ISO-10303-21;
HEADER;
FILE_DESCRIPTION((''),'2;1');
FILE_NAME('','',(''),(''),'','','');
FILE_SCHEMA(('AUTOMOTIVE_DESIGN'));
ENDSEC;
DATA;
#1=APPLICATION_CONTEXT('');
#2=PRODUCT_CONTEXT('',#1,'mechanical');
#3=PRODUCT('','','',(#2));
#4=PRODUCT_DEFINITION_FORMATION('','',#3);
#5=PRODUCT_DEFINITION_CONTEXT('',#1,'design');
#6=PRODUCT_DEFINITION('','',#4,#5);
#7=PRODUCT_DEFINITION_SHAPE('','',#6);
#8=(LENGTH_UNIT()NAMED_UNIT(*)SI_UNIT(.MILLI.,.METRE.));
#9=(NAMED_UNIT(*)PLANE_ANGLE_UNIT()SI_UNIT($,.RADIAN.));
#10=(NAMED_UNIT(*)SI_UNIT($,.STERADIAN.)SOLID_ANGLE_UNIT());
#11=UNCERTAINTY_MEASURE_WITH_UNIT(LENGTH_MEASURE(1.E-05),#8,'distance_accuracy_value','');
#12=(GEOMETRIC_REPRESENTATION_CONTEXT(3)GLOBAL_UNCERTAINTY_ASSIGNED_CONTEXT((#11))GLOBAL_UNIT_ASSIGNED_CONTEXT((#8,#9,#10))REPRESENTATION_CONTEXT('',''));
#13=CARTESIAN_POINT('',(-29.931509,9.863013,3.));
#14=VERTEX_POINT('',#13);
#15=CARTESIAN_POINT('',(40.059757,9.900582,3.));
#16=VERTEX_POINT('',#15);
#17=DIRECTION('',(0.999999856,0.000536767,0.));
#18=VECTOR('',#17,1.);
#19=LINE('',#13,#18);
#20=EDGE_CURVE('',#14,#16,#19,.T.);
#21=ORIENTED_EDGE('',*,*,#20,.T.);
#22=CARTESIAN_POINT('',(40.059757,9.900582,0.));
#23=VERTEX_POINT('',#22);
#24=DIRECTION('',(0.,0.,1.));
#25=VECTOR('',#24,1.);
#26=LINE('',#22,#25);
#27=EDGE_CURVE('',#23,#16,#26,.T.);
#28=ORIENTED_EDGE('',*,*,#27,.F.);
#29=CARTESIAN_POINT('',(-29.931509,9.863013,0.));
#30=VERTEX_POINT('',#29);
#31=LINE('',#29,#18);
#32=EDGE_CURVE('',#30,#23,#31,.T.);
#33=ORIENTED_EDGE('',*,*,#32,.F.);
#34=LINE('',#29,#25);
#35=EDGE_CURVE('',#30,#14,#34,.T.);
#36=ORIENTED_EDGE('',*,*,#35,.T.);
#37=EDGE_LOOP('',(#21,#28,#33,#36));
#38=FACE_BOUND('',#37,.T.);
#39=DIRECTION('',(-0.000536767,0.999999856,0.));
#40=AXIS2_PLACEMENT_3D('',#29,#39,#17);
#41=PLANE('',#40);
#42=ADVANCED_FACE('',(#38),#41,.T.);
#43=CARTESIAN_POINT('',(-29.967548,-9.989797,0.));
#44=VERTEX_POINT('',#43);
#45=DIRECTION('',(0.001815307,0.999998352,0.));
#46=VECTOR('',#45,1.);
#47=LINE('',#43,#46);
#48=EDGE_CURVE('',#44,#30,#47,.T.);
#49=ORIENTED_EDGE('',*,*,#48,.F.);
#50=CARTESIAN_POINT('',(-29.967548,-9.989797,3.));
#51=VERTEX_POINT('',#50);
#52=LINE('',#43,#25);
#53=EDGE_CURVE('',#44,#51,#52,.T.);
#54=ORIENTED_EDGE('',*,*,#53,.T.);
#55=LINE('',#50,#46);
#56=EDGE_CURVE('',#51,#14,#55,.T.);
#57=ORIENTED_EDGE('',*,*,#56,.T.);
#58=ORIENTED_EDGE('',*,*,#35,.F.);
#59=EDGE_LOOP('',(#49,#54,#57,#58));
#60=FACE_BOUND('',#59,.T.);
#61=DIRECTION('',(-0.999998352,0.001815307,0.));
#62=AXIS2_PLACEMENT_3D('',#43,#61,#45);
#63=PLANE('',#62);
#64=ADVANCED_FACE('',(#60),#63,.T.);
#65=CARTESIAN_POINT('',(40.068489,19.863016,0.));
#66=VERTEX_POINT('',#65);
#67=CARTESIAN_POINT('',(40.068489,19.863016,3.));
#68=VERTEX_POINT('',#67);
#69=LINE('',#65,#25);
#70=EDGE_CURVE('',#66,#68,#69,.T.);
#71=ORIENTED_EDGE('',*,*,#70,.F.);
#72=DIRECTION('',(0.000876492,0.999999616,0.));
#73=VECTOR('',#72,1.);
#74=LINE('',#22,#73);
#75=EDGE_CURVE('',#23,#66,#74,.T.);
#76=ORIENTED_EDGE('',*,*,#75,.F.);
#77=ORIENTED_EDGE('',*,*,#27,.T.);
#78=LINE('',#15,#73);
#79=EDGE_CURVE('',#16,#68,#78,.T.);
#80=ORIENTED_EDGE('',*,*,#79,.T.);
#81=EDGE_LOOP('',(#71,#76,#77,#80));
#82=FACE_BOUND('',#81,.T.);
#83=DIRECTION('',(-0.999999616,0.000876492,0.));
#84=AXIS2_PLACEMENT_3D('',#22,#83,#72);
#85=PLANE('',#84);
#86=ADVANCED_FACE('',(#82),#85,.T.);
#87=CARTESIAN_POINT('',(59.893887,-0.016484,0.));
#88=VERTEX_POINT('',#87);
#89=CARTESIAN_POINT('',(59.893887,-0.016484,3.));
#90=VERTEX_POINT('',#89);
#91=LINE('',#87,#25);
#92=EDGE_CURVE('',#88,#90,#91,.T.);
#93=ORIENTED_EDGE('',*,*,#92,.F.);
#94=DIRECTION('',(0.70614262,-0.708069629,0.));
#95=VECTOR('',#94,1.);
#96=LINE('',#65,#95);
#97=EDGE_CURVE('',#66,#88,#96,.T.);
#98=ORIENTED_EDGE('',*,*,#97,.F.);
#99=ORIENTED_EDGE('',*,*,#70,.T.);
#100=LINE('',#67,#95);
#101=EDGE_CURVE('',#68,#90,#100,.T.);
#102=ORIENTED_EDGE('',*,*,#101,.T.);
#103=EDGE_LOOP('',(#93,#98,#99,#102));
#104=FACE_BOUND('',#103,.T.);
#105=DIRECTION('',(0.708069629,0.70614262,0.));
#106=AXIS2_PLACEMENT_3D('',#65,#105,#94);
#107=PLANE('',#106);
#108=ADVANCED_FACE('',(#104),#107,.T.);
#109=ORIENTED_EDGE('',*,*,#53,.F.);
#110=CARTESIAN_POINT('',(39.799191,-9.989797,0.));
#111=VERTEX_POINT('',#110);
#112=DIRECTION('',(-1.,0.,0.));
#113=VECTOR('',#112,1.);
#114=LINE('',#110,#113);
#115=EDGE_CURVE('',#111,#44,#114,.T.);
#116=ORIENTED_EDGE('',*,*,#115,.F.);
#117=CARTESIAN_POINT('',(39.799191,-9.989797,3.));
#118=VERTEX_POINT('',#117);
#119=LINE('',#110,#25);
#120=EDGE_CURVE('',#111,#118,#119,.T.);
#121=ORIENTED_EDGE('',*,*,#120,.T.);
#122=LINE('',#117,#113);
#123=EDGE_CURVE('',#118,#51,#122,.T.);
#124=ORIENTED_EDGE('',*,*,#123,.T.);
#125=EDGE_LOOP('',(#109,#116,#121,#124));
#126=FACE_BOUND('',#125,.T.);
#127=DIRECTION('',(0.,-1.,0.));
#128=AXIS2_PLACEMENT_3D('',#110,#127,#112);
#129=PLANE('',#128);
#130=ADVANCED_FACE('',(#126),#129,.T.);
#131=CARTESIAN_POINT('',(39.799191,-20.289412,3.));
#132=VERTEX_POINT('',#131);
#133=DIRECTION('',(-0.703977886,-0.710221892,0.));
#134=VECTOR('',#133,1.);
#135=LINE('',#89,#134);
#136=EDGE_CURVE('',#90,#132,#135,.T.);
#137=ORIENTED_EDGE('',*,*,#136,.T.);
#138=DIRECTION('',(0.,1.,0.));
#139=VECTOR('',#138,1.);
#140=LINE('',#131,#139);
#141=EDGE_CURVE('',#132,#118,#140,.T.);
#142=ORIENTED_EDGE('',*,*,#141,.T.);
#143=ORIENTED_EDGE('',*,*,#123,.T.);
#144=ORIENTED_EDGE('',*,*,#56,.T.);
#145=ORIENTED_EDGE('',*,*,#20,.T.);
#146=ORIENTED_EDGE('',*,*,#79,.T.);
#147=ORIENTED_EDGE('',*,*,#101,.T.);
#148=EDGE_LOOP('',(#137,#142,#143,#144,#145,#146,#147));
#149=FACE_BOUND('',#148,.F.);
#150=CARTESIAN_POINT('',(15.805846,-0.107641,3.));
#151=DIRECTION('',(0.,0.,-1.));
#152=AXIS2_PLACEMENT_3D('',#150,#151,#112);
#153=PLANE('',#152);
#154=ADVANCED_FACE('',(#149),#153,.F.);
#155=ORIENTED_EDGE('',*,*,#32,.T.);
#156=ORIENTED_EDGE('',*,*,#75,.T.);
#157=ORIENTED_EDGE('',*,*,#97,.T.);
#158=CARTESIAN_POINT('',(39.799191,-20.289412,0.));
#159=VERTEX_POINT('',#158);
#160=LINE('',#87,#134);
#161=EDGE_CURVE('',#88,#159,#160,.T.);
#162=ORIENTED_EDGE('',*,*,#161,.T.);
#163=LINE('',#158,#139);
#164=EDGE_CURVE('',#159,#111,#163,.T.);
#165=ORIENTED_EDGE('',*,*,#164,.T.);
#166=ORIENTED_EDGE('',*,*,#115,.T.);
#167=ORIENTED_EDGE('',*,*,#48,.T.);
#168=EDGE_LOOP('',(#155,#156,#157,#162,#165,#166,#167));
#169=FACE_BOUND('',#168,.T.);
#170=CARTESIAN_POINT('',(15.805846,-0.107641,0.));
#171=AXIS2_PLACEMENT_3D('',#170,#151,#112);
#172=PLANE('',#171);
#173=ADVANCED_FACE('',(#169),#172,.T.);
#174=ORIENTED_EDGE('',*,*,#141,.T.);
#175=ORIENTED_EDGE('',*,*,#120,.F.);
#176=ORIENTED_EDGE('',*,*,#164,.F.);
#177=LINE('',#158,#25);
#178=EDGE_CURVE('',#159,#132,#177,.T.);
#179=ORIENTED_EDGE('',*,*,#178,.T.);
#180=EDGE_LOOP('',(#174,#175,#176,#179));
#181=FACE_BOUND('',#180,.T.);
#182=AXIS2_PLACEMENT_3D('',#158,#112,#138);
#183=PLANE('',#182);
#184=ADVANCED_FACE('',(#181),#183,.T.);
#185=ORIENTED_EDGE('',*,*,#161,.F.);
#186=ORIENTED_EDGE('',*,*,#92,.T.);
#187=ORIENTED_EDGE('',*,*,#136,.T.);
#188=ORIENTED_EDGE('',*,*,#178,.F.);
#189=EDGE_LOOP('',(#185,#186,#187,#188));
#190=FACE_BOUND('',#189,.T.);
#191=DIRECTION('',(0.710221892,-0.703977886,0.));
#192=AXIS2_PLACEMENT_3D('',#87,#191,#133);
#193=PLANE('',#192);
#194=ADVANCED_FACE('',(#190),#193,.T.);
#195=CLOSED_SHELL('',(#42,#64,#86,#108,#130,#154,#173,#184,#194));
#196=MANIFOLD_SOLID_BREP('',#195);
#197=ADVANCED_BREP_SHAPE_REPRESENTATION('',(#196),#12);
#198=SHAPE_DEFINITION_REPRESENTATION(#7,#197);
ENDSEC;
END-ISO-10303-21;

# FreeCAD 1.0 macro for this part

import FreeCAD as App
import Part
import Sketcher
from FreeCAD import Vector


def add_polygon(sketch, points):
    """Adds a closed chain of lines whose ends are joined by coincident constraints."""
    first, n = sketch.GeometryCount, len(points)
    for a, b in zip(points, points[1:] + points[:1]):
        sketch.addGeometry(Part.LineSegment(App.Vector(*a, 0), App.Vector(*b, 0)), False)
    for i in range(n):
        sketch.addConstraint(Sketcher.Constraint("Coincident", first + i, 2, first + (i + 1) % n, 1))

doc = App.newDocument("Part")
body = doc.addObject("PartDesign::Body", "Body")

# Sketch on XY plane
sketch1 = doc.addObject("Sketcher::SketchObject", "Sketch")
body.addObject(sketch1)
sketch1.AttachmentSupport = (doc.XY_Plane, [""])
sketch1.MapMode = "FlatFace"
add_polygon(sketch1, [(40, 10), (-30, 10), (-30, -10), (40, -10), (40, -20), (60, 0), (40, 20)])  # lines 0-6
sketch1.addConstraint([
    Sketcher.Constraint("Horizontal", 2),
    Sketcher.Constraint("Vertical", 3),
    Sketcher.Constraint("DistanceX", 0, 2, 5, 2, 69.999998),
    Sketcher.Constraint("Distance", 4, 28.544499),
    Sketcher.Constraint("DistanceX", 2, 1, 2, 2, 69.766739),
    Sketcher.Constraint("DistanceX", 0, 2, 2, 2, 69.7307),
    Sketcher.Constraint("DistanceX", 5, 2, 4, 2, 19.825398),
    Sketcher.Constraint("DistanceY", 4, 2, 5, 2, 19.8795),
    Sketcher.Constraint("DistanceY", 3, 2, 3, 1, 10.299615),
    Sketcher.Constraint("DistanceX", 0, 2, -1, 1, 29.931509),
    Sketcher.Constraint("DistanceY", 3, 2, -1, 1, 20.289412),
    Sketcher.Constraint("DistanceY", 1, 2, 0, 2, 19.85281),
    Sketcher.Constraint("DistanceY", 2, 2, 6, 2, 19.890379),
    Sketcher.Constraint("DistanceX", 6, 2, 4, 2, 19.83413),
])
pad1 = doc.addObject("PartDesign::Pad", "Pad")
body.addObject(pad1)
pad1.Profile = sketch1
pad1.Length = 3

doc.recompute()
